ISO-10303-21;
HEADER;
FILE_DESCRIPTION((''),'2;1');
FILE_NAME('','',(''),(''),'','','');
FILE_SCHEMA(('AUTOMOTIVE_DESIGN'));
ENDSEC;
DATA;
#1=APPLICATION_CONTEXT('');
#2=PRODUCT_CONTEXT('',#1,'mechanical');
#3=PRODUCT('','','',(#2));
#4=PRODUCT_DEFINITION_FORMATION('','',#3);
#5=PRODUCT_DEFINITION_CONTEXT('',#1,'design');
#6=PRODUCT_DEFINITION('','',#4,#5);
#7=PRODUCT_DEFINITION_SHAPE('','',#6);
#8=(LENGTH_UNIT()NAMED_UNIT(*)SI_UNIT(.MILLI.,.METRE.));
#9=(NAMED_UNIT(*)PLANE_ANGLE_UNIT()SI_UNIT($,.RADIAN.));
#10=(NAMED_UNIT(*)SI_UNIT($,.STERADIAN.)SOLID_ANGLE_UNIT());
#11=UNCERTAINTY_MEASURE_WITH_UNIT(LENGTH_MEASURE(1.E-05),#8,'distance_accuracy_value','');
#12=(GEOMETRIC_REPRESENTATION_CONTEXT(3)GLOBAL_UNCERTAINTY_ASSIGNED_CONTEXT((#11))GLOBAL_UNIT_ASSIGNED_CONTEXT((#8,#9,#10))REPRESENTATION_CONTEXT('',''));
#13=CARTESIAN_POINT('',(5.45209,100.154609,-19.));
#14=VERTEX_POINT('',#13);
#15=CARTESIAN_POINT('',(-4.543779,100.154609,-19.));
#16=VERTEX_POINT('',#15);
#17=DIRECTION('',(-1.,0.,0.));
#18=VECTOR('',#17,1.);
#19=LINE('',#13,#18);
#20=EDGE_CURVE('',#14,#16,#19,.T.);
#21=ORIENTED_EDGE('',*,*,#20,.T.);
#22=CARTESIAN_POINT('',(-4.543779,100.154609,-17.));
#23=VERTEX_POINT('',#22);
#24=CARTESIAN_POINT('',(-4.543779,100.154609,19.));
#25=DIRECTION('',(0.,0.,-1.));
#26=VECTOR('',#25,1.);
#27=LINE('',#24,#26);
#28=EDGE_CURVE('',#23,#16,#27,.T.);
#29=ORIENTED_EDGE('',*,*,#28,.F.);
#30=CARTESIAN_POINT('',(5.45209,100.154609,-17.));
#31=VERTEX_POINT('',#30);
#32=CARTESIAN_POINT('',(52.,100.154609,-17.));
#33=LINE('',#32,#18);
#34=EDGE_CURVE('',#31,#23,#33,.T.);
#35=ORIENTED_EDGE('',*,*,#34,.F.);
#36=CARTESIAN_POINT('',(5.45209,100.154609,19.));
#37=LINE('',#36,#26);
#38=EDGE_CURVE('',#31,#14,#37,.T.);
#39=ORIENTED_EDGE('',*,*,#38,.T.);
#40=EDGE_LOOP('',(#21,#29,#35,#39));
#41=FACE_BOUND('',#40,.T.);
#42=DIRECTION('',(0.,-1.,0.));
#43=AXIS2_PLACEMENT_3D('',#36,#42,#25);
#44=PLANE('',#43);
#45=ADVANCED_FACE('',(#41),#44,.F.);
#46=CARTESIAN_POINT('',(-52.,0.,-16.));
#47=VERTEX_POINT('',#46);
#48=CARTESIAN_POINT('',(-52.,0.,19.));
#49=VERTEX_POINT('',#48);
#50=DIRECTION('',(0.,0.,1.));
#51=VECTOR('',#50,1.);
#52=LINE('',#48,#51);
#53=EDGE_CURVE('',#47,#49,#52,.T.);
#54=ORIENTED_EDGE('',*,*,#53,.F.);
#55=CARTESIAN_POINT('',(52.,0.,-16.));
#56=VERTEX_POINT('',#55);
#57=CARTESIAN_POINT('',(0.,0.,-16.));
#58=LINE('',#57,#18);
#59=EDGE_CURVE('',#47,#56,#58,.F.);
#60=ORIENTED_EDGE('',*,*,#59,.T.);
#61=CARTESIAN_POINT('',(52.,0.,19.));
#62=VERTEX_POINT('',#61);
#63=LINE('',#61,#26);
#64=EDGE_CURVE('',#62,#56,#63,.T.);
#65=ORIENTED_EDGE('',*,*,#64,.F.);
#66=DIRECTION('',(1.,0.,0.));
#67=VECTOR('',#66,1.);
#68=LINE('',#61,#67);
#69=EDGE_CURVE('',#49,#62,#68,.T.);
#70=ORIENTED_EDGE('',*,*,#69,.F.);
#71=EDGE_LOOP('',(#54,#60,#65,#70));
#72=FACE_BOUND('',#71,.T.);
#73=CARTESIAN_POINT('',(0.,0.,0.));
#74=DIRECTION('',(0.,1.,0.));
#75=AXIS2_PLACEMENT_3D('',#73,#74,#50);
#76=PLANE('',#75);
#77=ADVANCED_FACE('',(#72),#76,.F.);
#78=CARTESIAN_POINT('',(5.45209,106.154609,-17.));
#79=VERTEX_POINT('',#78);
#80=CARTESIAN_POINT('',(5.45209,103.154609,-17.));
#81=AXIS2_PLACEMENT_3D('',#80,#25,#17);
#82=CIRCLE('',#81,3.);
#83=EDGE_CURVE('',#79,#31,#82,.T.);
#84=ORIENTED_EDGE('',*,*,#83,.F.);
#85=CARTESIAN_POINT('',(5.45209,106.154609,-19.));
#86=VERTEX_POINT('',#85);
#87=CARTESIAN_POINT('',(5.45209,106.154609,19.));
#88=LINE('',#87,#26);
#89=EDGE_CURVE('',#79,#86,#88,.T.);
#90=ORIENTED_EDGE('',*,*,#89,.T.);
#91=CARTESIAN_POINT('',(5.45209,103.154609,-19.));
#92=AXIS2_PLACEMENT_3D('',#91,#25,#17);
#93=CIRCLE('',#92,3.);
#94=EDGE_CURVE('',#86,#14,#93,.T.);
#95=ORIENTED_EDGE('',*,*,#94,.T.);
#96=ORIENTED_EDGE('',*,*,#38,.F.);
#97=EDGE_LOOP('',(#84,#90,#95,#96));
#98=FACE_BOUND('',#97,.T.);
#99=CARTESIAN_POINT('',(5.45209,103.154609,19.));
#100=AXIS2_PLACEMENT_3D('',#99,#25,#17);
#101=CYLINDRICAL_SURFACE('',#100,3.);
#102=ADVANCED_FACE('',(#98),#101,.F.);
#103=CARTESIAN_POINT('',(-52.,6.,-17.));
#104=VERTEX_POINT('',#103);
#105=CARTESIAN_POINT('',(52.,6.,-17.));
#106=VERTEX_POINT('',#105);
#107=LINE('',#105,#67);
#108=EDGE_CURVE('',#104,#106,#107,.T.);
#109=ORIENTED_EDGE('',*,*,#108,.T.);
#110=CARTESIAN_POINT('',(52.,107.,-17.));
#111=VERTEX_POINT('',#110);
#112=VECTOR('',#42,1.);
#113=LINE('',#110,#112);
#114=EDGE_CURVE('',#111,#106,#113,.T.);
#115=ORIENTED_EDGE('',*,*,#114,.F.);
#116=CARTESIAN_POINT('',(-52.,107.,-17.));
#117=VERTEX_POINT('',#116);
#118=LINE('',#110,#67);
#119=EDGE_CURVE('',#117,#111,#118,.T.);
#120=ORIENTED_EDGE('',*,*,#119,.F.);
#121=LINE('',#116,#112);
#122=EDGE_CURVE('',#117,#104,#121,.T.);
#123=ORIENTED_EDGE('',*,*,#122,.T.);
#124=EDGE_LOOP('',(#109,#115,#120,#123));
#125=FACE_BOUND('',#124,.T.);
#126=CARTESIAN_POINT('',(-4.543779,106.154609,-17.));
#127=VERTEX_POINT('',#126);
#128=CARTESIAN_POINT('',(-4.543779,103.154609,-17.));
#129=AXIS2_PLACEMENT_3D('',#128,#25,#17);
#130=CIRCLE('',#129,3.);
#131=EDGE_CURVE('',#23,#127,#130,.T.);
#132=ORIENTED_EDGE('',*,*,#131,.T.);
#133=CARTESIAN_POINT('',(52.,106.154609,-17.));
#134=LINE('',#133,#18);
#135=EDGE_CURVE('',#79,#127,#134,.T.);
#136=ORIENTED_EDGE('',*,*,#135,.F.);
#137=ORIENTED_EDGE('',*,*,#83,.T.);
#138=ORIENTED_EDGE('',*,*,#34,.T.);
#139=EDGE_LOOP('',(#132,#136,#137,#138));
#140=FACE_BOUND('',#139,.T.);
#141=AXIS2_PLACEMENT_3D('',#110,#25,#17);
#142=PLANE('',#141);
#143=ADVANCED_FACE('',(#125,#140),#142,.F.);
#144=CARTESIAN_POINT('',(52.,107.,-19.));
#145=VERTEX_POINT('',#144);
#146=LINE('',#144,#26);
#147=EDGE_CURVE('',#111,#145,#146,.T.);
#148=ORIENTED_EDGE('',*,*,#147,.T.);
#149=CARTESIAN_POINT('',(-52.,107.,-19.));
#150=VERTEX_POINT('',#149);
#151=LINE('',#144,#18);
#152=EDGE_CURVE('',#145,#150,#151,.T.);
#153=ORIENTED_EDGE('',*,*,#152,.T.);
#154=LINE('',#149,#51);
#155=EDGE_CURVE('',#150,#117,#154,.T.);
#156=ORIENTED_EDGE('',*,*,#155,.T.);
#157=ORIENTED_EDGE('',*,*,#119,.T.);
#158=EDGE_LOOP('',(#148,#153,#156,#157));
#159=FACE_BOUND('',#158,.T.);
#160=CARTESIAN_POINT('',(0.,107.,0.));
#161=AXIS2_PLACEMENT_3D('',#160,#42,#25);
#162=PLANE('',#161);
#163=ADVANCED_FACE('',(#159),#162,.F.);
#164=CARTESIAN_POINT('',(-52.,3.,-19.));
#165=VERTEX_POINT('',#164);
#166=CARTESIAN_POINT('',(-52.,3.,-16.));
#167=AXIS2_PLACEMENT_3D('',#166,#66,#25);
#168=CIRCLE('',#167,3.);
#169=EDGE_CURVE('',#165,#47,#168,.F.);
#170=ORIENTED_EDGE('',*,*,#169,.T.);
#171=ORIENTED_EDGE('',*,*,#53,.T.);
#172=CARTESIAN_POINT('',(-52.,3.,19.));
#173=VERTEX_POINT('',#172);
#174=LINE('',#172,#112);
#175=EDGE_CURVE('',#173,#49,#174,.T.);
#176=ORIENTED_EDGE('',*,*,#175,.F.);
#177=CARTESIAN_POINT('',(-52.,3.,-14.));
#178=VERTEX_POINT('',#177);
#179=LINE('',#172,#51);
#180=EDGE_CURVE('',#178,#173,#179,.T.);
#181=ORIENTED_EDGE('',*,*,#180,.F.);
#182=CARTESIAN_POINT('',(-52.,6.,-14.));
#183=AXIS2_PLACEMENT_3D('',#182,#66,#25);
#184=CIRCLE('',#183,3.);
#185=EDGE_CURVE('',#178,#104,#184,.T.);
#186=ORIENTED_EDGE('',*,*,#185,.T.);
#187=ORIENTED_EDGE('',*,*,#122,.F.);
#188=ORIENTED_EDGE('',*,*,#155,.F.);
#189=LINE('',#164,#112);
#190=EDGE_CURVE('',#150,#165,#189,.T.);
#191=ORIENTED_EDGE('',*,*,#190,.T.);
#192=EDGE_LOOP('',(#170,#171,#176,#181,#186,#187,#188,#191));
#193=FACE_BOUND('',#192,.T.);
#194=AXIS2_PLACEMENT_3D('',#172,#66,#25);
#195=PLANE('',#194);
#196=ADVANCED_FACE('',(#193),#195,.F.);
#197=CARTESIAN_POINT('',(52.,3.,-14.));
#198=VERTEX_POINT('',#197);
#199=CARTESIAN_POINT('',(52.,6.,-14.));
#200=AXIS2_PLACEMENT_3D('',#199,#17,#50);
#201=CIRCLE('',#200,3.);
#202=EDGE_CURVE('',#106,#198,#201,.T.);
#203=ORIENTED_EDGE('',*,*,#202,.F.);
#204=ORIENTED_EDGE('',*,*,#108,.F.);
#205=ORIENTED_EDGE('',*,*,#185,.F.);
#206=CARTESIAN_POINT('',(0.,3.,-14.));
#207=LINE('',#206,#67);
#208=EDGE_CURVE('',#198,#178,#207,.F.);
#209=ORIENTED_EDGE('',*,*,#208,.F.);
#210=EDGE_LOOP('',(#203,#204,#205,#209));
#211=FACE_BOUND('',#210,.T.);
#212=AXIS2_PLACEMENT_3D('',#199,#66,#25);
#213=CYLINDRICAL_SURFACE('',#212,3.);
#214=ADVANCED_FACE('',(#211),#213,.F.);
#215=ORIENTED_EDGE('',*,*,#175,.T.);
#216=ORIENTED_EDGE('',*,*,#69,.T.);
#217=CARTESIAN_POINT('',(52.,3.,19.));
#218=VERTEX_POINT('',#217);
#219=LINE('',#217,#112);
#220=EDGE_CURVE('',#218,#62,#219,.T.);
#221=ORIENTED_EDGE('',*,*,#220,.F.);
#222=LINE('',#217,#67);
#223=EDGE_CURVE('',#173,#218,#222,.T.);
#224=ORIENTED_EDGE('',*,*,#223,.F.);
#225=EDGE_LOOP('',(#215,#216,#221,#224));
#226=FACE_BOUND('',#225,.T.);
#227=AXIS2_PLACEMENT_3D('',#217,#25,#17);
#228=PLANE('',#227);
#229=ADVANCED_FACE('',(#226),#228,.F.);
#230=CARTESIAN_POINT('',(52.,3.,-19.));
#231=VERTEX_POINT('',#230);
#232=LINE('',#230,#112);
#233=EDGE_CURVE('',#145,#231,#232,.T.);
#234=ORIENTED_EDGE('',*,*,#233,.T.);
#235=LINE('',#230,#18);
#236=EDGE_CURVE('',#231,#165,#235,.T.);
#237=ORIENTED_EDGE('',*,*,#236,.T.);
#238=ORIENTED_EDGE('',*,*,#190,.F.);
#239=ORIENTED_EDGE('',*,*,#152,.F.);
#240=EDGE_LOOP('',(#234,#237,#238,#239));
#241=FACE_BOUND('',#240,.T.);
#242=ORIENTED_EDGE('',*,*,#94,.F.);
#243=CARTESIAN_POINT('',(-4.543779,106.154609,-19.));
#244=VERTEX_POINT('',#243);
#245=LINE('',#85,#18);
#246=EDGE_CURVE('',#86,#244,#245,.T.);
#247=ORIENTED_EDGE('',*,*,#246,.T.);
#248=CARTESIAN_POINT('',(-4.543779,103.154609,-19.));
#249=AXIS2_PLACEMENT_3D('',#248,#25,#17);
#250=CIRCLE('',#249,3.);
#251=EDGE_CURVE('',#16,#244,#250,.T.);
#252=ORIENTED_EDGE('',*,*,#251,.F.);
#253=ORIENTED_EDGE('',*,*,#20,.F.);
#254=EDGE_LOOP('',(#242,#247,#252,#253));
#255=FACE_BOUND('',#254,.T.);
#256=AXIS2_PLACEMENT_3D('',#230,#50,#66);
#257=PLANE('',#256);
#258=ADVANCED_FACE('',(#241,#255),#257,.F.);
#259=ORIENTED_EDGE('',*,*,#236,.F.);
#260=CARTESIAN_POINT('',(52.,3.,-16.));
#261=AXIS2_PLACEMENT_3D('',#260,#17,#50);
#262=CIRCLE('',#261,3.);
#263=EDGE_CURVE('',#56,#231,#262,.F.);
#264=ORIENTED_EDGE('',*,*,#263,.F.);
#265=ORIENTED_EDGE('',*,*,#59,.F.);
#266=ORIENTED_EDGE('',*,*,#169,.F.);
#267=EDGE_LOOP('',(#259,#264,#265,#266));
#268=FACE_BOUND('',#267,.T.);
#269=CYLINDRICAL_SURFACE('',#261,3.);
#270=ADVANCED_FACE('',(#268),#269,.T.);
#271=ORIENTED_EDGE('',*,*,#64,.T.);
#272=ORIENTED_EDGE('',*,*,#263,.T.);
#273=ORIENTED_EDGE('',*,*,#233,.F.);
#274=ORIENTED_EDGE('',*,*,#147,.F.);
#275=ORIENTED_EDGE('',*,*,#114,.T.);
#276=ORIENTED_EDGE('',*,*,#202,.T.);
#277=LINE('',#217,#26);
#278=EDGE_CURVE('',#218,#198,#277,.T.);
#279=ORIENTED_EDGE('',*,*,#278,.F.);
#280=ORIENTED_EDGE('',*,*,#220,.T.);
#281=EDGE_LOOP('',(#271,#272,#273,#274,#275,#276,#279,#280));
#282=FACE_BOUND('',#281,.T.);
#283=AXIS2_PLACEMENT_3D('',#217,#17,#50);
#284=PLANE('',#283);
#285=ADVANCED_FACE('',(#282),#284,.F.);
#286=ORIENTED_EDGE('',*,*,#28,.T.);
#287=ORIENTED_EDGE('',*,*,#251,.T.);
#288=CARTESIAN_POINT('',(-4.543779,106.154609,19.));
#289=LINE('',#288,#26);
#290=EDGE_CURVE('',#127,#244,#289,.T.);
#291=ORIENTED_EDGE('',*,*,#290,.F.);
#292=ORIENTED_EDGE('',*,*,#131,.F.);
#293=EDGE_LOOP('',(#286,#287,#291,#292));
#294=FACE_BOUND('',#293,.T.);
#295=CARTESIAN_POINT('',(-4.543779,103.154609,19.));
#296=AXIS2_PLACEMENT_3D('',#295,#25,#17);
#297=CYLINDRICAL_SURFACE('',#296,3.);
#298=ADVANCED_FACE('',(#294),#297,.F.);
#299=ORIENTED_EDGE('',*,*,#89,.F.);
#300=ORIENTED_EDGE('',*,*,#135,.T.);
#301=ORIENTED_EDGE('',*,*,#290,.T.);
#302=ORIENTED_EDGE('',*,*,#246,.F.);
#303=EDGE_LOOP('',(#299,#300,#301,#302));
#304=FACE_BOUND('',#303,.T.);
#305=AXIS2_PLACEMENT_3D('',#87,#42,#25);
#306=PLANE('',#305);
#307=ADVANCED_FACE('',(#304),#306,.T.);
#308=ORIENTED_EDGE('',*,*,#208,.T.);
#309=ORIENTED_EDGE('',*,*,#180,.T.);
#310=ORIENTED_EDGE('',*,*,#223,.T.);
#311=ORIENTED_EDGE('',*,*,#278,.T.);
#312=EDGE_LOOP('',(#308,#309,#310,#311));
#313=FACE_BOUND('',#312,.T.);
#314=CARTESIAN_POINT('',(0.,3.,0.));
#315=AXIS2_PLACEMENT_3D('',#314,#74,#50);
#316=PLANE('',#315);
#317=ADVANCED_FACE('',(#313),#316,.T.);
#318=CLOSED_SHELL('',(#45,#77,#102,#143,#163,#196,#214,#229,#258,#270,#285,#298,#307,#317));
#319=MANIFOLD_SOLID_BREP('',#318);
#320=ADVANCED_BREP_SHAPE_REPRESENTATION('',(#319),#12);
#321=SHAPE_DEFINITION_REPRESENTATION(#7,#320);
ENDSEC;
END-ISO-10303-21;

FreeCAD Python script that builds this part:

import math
import FreeCAD as App
import Part
import Sketcher

V = App.Vector


def edges_at(feature, points):
    """Names of the edges that pass closest to the given points."""
    edges = feature.Shape.Edges
    near = lambda p: min(range(len(edges)), key=lambda i: edges[i].distToShape(Part.Vertex(*p))[0])
    return sorted({f"Edge{near(p) + 1}" for p in points})


def add_polygon(sketch, points):
    """Adds a closed chain of lines whose ends are joined by coincident constraints."""
    first, n = sketch.GeometryCount, len(points)
    for a, b in zip(points, points[1:] + points[:1]):
        sketch.addGeometry(Part.LineSegment(App.Vector(*a, 0), App.Vector(*b, 0)), False)
    for i in range(n):
        sketch.addConstraint(Sketcher.Constraint("Coincident", first + i, 2, first + (i + 1) % n, 1))

doc = App.newDocument("Part")
body = doc.addObject("PartDesign::Body", "Body")

sketch1 = body.newObject("Sketcher::SketchObject", "Sketch")
sketch1.AttachmentSupport = (doc.getObject("XZ_Plane"), [""])
sketch1.MapMode = "FlatFace"
add_polygon(sketch1, [(-52, -19), (-52, 19), (52, 19), (52, -19)])
sketch1.addConstraint(Sketcher.Constraint("Vertical", 0))
sketch1.addConstraint(Sketcher.Constraint("Horizontal", 1))
sketch1.addConstraint(Sketcher.Constraint("Vertical", 2))
sketch1.addConstraint(Sketcher.Constraint("Horizontal", 3))
sketch1.addConstraint(Sketcher.Constraint("Symmetric", 0, 2, 2, 2, -1, 1))
sketch1.addConstraint(Sketcher.Constraint("DistanceX", 1, 1, 1, 2, 104.0))
sketch1.addConstraint(Sketcher.Constraint("DistanceY", 0, 1, 0, 2, 38.0))
pad1 = body.newObject("PartDesign::Pad", "Pad")
pad1.Profile = sketch1
pad1.Length = 3
pad1.Reversed = True

sketch2 = body.newObject("Sketcher::SketchObject", "Sketch001")
sketch2.AttachmentSupport = (doc.getObject("XZ_Plane"), [""])
sketch2.MapMode = "FlatFace"
sketch2.AttachmentOffset = App.Placement(V(0, 0, -3), App.Rotation())
add_polygon(sketch2, [(-52, -19), (-52, -17), (52, -17), (52, -19)])
sketch2.addConstraint(Sketcher.Constraint("Vertical", 0))
sketch2.addConstraint(Sketcher.Constraint("Horizontal", 1))
sketch2.addConstraint(Sketcher.Constraint("Vertical", 2))
sketch2.addConstraint(Sketcher.Constraint("Horizontal", 3))
sketch2.addConstraint(Sketcher.Constraint("DistanceX", 1, 1, 1, 2, 104.0))
sketch2.addConstraint(Sketcher.Constraint("DistanceY", 0, 1, 0, 2, 2.0))
sketch2.addConstraint(Sketcher.Constraint("DistanceX", 0, 2, -1, 1, 52.0))
sketch2.addConstraint(Sketcher.Constraint("DistanceY", 0, 2, -1, 1, 17.0))
pad2 = body.newObject("PartDesign::Pad", "Pad001")
pad2.Profile = sketch2
pad2.Length = 104
pad2.Reversed = True
doc.recompute()

fillet = body.newObject("PartDesign::Fillet", "Fillet")
fillet.Base = (pad2, edges_at(pad2, [(0, 3, -17), (0, 0, -19)]))
fillet.Radius = 3

sketch3 = body.newObject("Sketcher::SketchObject", "Sketch002")
sketch3.AttachmentSupport = (doc.getObject("XY_Plane"), [""])
sketch3.MapMode = "FlatFace"
sketch3.AttachmentOffset = App.Placement(V(0, 0, -19), App.Rotation())
sketch3.addGeometry(Part.LineSegment(V(-4.543779, 106.154609, 0), V(5.45209, 106.154609, 0)), False)
sketch3.addGeometry(Part.ArcOfCircle(Part.Circle(V(5.45209, 103.154609, 0), V(0, 0, 1), 3), math.radians(-90), math.radians(90)), False)
sketch3.addGeometry(Part.LineSegment(V(5.45209, 100.154609, 0), V(-4.543779, 100.154609, 0)), False)
sketch3.addGeometry(Part.ArcOfCircle(Part.Circle(V(-4.543779, 103.154609, 0), V(0, 0, 1), 3), math.radians(90), math.radians(270)), False)
sketch3.addConstraint(Sketcher.Constraint("Tangent", 0, 2, 1, 2))
sketch3.addConstraint(Sketcher.Constraint("Tangent", 1, 1, 2, 1))
sketch3.addConstraint(Sketcher.Constraint("Tangent", 2, 2, 3, 2))
sketch3.addConstraint(Sketcher.Constraint("Tangent", 3, 1, 0, 1))
sketch3.addConstraint(Sketcher.Constraint("Horizontal", 0))
sketch3.addConstraint(Sketcher.Constraint("Horizontal", 2))
sketch3.addConstraint(Sketcher.Constraint("Radius", 1, 3.0))
sketch3.addConstraint(Sketcher.Constraint("DistanceX", 0, 1, 0, 2, 9.995868))
sketch3.addConstraint(Sketcher.Constraint("DistanceX", -1, 1, 1, 3, 5.45209))
sketch3.addConstraint(Sketcher.Constraint("DistanceY", -1, 1, 1, 3, 103.154609))
pocket1 = body.newObject("PartDesign::Pocket", "Pocket")
pocket1.Profile = sketch3
pocket1.Type = "ThroughAll"
pocket1.Reversed = True

doc.recompute()
